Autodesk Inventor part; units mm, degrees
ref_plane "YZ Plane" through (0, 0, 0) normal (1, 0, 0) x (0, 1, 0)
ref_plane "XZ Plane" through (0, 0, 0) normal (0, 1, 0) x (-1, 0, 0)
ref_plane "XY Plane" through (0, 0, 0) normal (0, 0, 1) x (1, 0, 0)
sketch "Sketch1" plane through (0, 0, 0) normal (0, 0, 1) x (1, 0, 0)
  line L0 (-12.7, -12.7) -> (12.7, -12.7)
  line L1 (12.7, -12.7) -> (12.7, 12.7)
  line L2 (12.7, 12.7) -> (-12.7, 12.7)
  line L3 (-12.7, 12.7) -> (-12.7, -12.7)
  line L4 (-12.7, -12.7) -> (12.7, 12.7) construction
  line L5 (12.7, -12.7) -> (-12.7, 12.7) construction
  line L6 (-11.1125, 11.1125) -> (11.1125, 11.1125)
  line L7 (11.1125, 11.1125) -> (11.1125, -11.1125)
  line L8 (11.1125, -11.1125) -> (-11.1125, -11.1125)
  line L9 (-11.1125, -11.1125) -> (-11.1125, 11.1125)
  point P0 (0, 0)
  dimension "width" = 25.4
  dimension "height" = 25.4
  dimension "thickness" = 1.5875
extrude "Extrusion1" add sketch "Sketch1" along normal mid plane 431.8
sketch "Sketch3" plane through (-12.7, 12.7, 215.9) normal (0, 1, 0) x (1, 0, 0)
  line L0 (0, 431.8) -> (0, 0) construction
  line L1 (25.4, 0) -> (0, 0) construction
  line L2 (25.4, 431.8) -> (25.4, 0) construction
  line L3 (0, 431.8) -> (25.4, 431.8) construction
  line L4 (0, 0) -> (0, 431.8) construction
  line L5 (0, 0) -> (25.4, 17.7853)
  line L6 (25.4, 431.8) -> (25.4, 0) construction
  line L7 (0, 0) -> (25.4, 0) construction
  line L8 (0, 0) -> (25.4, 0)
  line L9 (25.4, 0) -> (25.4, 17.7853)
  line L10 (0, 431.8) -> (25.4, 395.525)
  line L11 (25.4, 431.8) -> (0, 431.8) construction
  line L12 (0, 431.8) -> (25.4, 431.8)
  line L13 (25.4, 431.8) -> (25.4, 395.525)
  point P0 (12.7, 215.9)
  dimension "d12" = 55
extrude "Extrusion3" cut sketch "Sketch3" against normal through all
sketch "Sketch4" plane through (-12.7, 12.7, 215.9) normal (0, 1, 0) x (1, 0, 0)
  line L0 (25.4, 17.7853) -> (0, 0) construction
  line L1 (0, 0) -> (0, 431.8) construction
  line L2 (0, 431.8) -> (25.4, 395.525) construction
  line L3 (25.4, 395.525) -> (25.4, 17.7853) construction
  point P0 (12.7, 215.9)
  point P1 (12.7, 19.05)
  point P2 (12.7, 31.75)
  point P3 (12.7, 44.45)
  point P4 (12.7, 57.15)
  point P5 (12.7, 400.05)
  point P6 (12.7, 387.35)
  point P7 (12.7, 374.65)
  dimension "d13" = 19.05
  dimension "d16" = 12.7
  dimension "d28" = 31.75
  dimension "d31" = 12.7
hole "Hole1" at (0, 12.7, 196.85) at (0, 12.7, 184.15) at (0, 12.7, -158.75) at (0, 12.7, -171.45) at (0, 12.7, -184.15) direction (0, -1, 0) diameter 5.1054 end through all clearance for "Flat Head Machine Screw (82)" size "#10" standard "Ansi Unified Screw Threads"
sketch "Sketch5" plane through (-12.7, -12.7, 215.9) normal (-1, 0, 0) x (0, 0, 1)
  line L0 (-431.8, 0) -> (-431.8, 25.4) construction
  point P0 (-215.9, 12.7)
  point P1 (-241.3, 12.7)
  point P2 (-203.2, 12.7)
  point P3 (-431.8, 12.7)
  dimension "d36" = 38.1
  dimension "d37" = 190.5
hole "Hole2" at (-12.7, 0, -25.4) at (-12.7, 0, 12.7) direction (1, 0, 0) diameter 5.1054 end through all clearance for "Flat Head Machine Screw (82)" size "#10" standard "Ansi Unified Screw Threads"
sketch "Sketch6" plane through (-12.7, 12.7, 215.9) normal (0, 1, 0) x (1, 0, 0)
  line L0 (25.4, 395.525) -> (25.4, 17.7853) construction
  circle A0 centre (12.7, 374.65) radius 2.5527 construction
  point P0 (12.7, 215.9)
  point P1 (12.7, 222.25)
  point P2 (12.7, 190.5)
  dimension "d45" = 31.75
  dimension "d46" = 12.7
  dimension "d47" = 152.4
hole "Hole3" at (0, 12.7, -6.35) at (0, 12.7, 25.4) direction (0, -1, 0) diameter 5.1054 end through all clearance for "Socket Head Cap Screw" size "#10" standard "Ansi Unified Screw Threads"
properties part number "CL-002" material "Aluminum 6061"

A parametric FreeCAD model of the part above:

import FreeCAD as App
import Part
import Sketcher
Q = App.Units.Quantity

doc = App.newDocument("Part")
body = doc.addObject("PartDesign::Body", "Body")

# Sketch on XY plane
sketch1 = body.newObject("Sketcher::SketchObject", "Sketch")
sketch1.AttachmentSupport = (doc.getObject("XY_Plane"), [""])
sketch1.MapMode = "FlatFace"
sketch1.addGeometry(Part.LineSegment(App.Vector(-12.7, 12.7, 0), App.Vector(-12.7, -12.7, 0)), False)
sketch1.addGeometry(Part.LineSegment(App.Vector(-12.7, -12.7, 0), App.Vector(12.7, -12.7, 0)), False)
sketch1.addGeometry(Part.LineSegment(App.Vector(12.7, -12.7, 0), App.Vector(12.7, 12.7, 0)), False)
sketch1.addGeometry(Part.LineSegment(App.Vector(12.7, 12.7, 0), App.Vector(-12.7, 12.7, 0)), False)
sketch1.addGeometry(Part.LineSegment(App.Vector(-11.1125, -11.1125, 0), App.Vector(-11.1125, 11.1125, 0)), False)
sketch1.addGeometry(Part.LineSegment(App.Vector(-11.1125, 11.1125, 0), App.Vector(11.1125, 11.1125, 0)), False)
sketch1.addGeometry(Part.LineSegment(App.Vector(11.1125, 11.1125, 0), App.Vector(11.1125, -11.1125, 0)), False)
sketch1.addGeometry(Part.LineSegment(App.Vector(11.1125, -11.1125, 0), App.Vector(-11.1125, -11.1125, 0)), False)
sketch1.addConstraint(Sketcher.Constraint("Coincident", 0, 2, 1, 1))
sketch1.addConstraint(Sketcher.Constraint("Coincident", 1, 2, 2, 1))
sketch1.addConstraint(Sketcher.Constraint("Coincident", 2, 2, 3, 1))
sketch1.addConstraint(Sketcher.Constraint("Coincident", 3, 2, 0, 1))
sketch1.addConstraint(Sketcher.Constraint("Coincident", 4, 2, 5, 1))
sketch1.addConstraint(Sketcher.Constraint("Coincident", 5, 2, 6, 1))
sketch1.addConstraint(Sketcher.Constraint("Coincident", 6, 2, 7, 1))
sketch1.addConstraint(Sketcher.Constraint("Coincident", 7, 2, 4, 1))
sketch1.addConstraint(Sketcher.Constraint("Vertical", 0))
sketch1.addConstraint(Sketcher.Constraint("Horizontal", 1))
sketch1.addConstraint(Sketcher.Constraint("Vertical", 2))
sketch1.addConstraint(Sketcher.Constraint("Horizontal", 3))
sketch1.addConstraint(Sketcher.Constraint("Vertical", 4))
sketch1.addConstraint(Sketcher.Constraint("Horizontal", 5))
sketch1.addConstraint(Sketcher.Constraint("Vertical", 6))
sketch1.addConstraint(Sketcher.Constraint("Horizontal", 7))
sketch1.addConstraint(Sketcher.Constraint("Symmetric", 0, 2, 2, 2, -1, 1))
sketch1.addConstraint(Sketcher.Constraint("Symmetric", 4, 2, 6, 2, -1, 1))
sketch1.addConstraint(Sketcher.Constraint("Equal", 3, 0))
sketch1.addConstraint(Sketcher.Constraint("Equal", 7, 4))
sketch1.addConstraint(Sketcher.Constraint("DistanceX", 1, 1, 1, 2, Q("1 in")))
sketch1.addConstraint(Sketcher.Constraint("DistanceX", 3, 2, 4, 2, Q("0.0625 in")))
pad1 = body.newObject("PartDesign::Pad", "Pad")
pad1.Profile = sketch1
pad1.Length = Q("17 in")
pad1.Midplane = True

# Sketch on XZ plane
sketch2 = body.newObject("Sketcher::SketchObject", "Sketch001")
sketch2.AttachmentSupport = (doc.getObject("XZ_Plane"), [""])
sketch2.MapMode = "FlatFace"
sketch2.AttachmentOffset = App.Placement(App.Vector(0, 0, -0.5 * 25.4), App.Rotation())
sketch2.addGeometry(Part.LineSegment(App.Vector(12.7, 198.1147, 0), App.Vector(-12.7, 215.9, 0)), False)
sketch2.addGeometry(Part.LineSegment(App.Vector(-12.7, 215.9, 0), App.Vector(12.7, 215.9, 0)), False)
sketch2.addGeometry(Part.LineSegment(App.Vector(12.7, 215.9, 0), App.Vector(12.7, 198.1147, 0)), False)
sketch2.addGeometry(Part.LineSegment(App.Vector(12.7, -215.9, 0), App.Vector(-12.7, -215.9, 0)), False)
sketch2.addGeometry(Part.LineSegment(App.Vector(-12.7, -215.9, 0), App.Vector(12.7, -179.625, 0)), False)
sketch2.addGeometry(Part.LineSegment(App.Vector(12.7, -179.625, 0), App.Vector(12.7, -215.9, 0)), False)
sketch2.addConstraint(Sketcher.Constraint("Coincident", 0, 2, 1, 1))
sketch2.addConstraint(Sketcher.Constraint("Coincident", 1, 2, 2, 1))
sketch2.addConstraint(Sketcher.Constraint("Coincident", 2, 2, 0, 1))
sketch2.addConstraint(Sketcher.Constraint("Coincident", 3, 2, 4, 1))
sketch2.addConstraint(Sketcher.Constraint("Coincident", 4, 2, 5, 1))
sketch2.addConstraint(Sketcher.Constraint("Coincident", 5, 2, 3, 1))
sketch2.addConstraint(Sketcher.Constraint("Horizontal", 1))
sketch2.addConstraint(Sketcher.Constraint("Vertical", 2))
sketch2.addConstraint(Sketcher.Constraint("Horizontal", 3))
sketch2.addConstraint(Sketcher.Constraint("Vertical", 5))
sketch2.addConstraint(Sketcher.Constraint("Symmetric", 1, 2, 3, 2, -1, 1))
sketch2.addConstraint(Sketcher.Constraint("Perpendicular", 0, 4))
sketch2.addConstraint(Sketcher.Constraint("Vertical", 0, 2, 3, 2))
sketch2.addConstraint(Sketcher.Constraint("Vertical", 2, 2, 4, 2))
sketch2.addConstraint(Sketcher.Constraint("Angle", 4, Q("55 deg")))
sketch2.addConstraint(Sketcher.Constraint("DistanceX", 1, 1, 1, 2, Q("1 in")))
sketch2.addConstraint(Sketcher.Constraint("DistanceY", 3, 2, 0, 2, Q("17 in")))
pocket1 = body.newObject("PartDesign::Pocket", "Pocket")
pocket1.Profile = sketch2
pocket1.Type = "ThroughAll"
pocket1.Reversed = True

# Sketch on XZ plane
sketch3 = body.newObject("Sketcher::SketchObject", "Sketch002")
sketch3.AttachmentSupport = (doc.getObject("XZ_Plane"), [""])
sketch3.MapMode = "FlatFace"
sketch3.AttachmentOffset = App.Placement(App.Vector(0, 0, -0.5 * 25.4), App.Rotation())
sketch3.addGeometry(Part.Circle(App.Vector(0, 196.85, 0), App.Vector(0, 0, 1), 2.5527), False)
sketch3.addGeometry(Part.Circle(App.Vector(0, 184.15, 0), App.Vector(0, 0, 1), 2.5527), False)
sketch3.addGeometry(Part.Circle(App.Vector(0, -158.75, 0), App.Vector(0, 0, 1), 2.5527), False)
sketch3.addGeometry(Part.Circle(App.Vector(0, -171.45, 0), App.Vector(0, 0, 1), 2.5527), False)
sketch3.addGeometry(Part.Circle(App.Vector(0, -184.15, 0), App.Vector(0, 0, 1), 2.5527), False)
sketch3.addConstraint(Sketcher.Constraint("Equal", 0, 1))
sketch3.addConstraint(Sketcher.Constraint("Equal", 1, 2))
sketch3.addConstraint(Sketcher.Constraint("Equal", 2, 3))
sketch3.addConstraint(Sketcher.Constraint("Equal", 3, 4))
sketch3.addConstraint(Sketcher.Constraint("Symmetric", 1, 3, 4, 3, -1, 1))
sketch3.addConstraint(Sketcher.Constraint("PointOnObject", 0, 3, -2))
sketch3.addConstraint(Sketcher.Constraint("PointOnObject", 1, 3, -2))
sketch3.addConstraint(Sketcher.Constraint("PointOnObject", 2, 3, -2))
sketch3.addConstraint(Sketcher.Constraint("PointOnObject", 3, 3, -2))
sketch3.addConstraint(Sketcher.Constraint("Diameter", 0, Q("0.201 in")))
sketch3.addConstraint(Sketcher.Constraint("DistanceY", 2, 3, 0, 3, Q("14 in")))
sketch3.addConstraint(Sketcher.Constraint("DistanceY", 3, 3, 1, 3, Q("14 in")))
sketch3.addConstraint(Sketcher.Constraint("DistanceY", 4, 3, 2, 3, Q("1 in")))
sketch3.addConstraint(Sketcher.Constraint("DistanceY", 1, 3, 0, 3, Q("0.5 in")))
doc.recompute()
hole = body.newObject("PartDesign::Hole", "Hole")
hole.Profile = sketch3
hole.ThreadType = "None"
hole.Diameter = Q("0.201 in")
hole.DepthType = "ThroughAll"
hole.Reversed = True

# Sketch on YZ plane
sketch4 = body.newObject("Sketcher::SketchObject", "Sketch003")
sketch4.AttachmentSupport = (doc.getObject("YZ_Plane"), [""])
sketch4.MapMode = "FlatFace"
sketch4.AttachmentOffset = App.Placement(App.Vector(0, 0, -0.5 * 25.4), App.Rotation())
sketch4.addGeometry(Part.Circle(App.Vector(0, -25.4, 0), App.Vector(0, 0, 1), 2.5527), False)
sketch4.addGeometry(Part.Circle(App.Vector(0, 12.7, 0), App.Vector(0, 0, 1), 2.5527), False)
sketch4.addConstraint(Sketcher.Constraint("Equal", 0, 1))
sketch4.addConstraint(Sketcher.Constraint("PointOnObject", 0, 3, -2))
sketch4.addConstraint(Sketcher.Constraint("PointOnObject", 1, 3, -2))
sketch4.addConstraint(Sketcher.Constraint("Diameter", 0, Q("0.201 in")))
sketch4.addConstraint(Sketcher.Constraint("DistanceY", 0, 3, -1, 1, Q("1 in")))
sketch4.addConstraint(Sketcher.Constraint("DistanceY", -1, 1, 1, 3, Q("0.5 in")))
doc.recompute()
hole2 = body.newObject("PartDesign::Hole", "Hole001")
hole2.Profile = sketch4
hole2.ThreadType = "None"
hole2.Diameter = Q("0.201 in")
hole2.DepthType = "ThroughAll"
hole2.Reversed = True

# Sketch on XZ plane
sketch5 = body.newObject("Sketcher::SketchObject", "Sketch004")
sketch5.AttachmentSupport = (doc.getObject("XZ_Plane"), [""])
sketch5.MapMode = "FlatFace"
sketch5.AttachmentOffset = App.Placement(App.Vector(0, 0, -0.5 * 25.4), App.Rotation())
sketch5.addGeometry(Part.Circle(App.Vector(0, -6.35, 0), App.Vector(0, 0, 1), 2.5527), False)
sketch5.addGeometry(Part.Circle(App.Vector(0, 25.4, 0), App.Vector(0, 0, 1), 2.5527), False)
sketch5.addConstraint(Sketcher.Constraint("Equal", 0, 1))
sketch5.addConstraint(Sketcher.Constraint("PointOnObject", 0, 3, -2))
sketch5.addConstraint(Sketcher.Constraint("PointOnObject", 1, 3, -2))
sketch5.addConstraint(Sketcher.Constraint("Diameter", 0, Q("0.201 in")))
sketch5.addConstraint(Sketcher.Constraint("DistanceY", -1, 1, 1, 3, Q("1 in")))
sketch5.addConstraint(Sketcher.Constraint("DistanceY", 0, 3, -1, 1, Q("0.25 in")))
doc.recompute()
hole3 = body.newObject("PartDesign::Hole", "Hole002")
hole3.Profile = sketch5
hole3.ThreadType = "None"
hole3.Diameter = Q("0.201 in")
hole3.DepthType = "ThroughAll"
hole3.Reversed = True

doc.recompute()
